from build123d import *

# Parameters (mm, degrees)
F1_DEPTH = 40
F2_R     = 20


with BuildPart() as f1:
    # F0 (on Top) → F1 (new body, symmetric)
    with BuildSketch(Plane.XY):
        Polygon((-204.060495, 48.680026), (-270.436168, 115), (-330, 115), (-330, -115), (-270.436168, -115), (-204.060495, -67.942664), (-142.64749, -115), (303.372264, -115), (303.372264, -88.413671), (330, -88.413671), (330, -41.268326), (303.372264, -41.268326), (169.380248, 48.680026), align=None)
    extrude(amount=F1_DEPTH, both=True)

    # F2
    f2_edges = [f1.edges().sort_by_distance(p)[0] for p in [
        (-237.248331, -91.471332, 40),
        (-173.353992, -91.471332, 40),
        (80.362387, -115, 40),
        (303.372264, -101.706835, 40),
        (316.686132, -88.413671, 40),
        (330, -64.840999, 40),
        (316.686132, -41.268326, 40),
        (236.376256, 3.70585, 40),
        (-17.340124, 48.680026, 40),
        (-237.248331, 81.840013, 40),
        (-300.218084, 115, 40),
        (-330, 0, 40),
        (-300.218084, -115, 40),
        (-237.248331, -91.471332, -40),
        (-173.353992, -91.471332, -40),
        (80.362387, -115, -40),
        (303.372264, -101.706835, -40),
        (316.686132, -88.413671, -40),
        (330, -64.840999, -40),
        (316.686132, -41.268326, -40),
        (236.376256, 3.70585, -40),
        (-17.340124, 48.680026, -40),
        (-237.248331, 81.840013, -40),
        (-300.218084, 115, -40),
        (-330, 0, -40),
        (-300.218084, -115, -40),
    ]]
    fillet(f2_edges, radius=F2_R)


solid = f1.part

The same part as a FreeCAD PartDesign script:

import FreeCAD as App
import Part
import Sketcher

V = App.Vector


def edges_at(feature, points):
    """Names of the edges that pass closest to the given points."""
    edges = feature.Shape.Edges
    near = lambda p: min(range(len(edges)), key=lambda i: edges[i].distToShape(Part.Vertex(*p))[0])
    return sorted({f"Edge{near(p) + 1}" for p in points})


def add_polygon(sketch, points):
    """Adds a closed chain of lines whose ends are joined by coincident constraints."""
    first, n = sketch.GeometryCount, len(points)
    for a, b in zip(points, points[1:] + points[:1]):
        sketch.addGeometry(Part.LineSegment(App.Vector(*a, 0), App.Vector(*b, 0)), False)
    for i in range(n):
        sketch.addConstraint(Sketcher.Constraint("Coincident", first + i, 2, first + (i + 1) % n, 1))

doc = App.newDocument("Part")
body = doc.addObject("PartDesign::Body", "Body")

sketch1 = body.newObject("Sketcher::SketchObject", "Sketch")
sketch1.AttachmentSupport = (doc.getObject("XY_Plane"), [""])
sketch1.MapMode = "FlatFace"
add_polygon(sketch1, [(-204.060495, 48.680026), (-270.436168, 115), (-330, 115), (-330, -115), (-270.436168, -115), (-204.060495, -67.942664), (-142.64749, -115), (303.372264, -115), (303.372264, -88.413671), (330, -88.413671), (330, -41.268326), (303.372264, -41.268326), (169.380248, 48.680026)])
sketch1.addConstraint(Sketcher.Constraint("Horizontal", 1))
sketch1.addConstraint(Sketcher.Constraint("Vertical", 2))
sketch1.addConstraint(Sketcher.Constraint("Horizontal", 3))
sketch1.addConstraint(Sketcher.Constraint("Horizontal", 6))
sketch1.addConstraint(Sketcher.Constraint("Vertical", 7))
sketch1.addConstraint(Sketcher.Constraint("Horizontal", 8))
sketch1.addConstraint(Sketcher.Constraint("Vertical", 9))
sketch1.addConstraint(Sketcher.Constraint("Horizontal", 10))
sketch1.addConstraint(Sketcher.Constraint("Horizontal", 12))
sketch1.addConstraint(Sketcher.Constraint("Symmetric", 0, 2, 3, 2, -1))
sketch1.addConstraint(Sketcher.Constraint("Horizontal", 3, 2, 5, 2))
sketch1.addConstraint(Sketcher.Constraint("Vertical", 7, 2, 10, 2))
sketch1.addConstraint(Sketcher.Constraint("Vertical", 4, 2, 12, 2))
sketch1.addConstraint(Sketcher.Constraint("DistanceY", 2, 2, 2, 1, 230.0))
sketch1.addConstraint(Sketcher.Constraint("DistanceX", 1, 2, -1, 1, 330.0))
sketch1.addConstraint(Sketcher.Constraint("DistanceX", -1, 1, 8, 2, 330.0))
sketch1.addConstraint(Sketcher.Constraint("Distance", 0, 93.83))
sketch1.addConstraint(Sketcher.Constraint("DistanceX", 1, 2, 1, 1, 59.563832))
sketch1.addConstraint(Sketcher.Constraint("DistanceY", 7, 1, 7, 2, 26.586329))
sketch1.addConstraint(Sketcher.Constraint("Distance", 5, 77.368922))
sketch1.addConstraint(Sketcher.Constraint("Distance", 11, 161.38329))
sketch1.addConstraint(Sketcher.Constraint("DistanceX", 6, 1, 6, 2, 446.019754))
sketch1.addConstraint(Sketcher.Constraint("DistanceX", 8, 1, 8, 2, 26.627736))
sketch1.addConstraint(Sketcher.Constraint("DistanceX", 12, 2, 12, 1, 373.440743))
sketch1.addConstraint(Sketcher.Constraint("DistanceY", 9, 1, 9, 2, 47.145345))
pad1 = body.newObject("PartDesign::Pad", "Pad")
pad1.Profile = sketch1
pad1.Length = 80
pad1.Midplane = True
doc.recompute()

fillet = body.newObject("PartDesign::Fillet", "Fillet")
fillet.Base = (pad1, edges_at(pad1, [
    (-237.248, -91.471, 40),
    (-173.354, -91.471, 40),
    (80.362, -115, 40),
    (303.372, -101.707, 40),
    (316.686, -88.414, 40),
    (330, -64.841, 40),
    (316.686, -41.268, 40),
    (236.376, 3.706, 40),
    (-17.34, 48.68, 40),
    (-237.248, 81.84, 40),
    (-300.218, 115, 40),
    (-330, 0, 40),
    (-300.218, -115, 40),
    (-237.248, -91.471, -40),
    (-173.354, -91.471, -40),
    (80.362, -115, -40),
    (303.372, -101.707, -40),
    (316.686, -88.414, -40),
    (330, -64.841, -40),
    (316.686, -41.268, -40),
    (236.376, 3.706, -40),
    (-17.34, 48.68, -40),
    (-237.248, 81.84, -40),
    (-300.218, 115, -40),
    (-330, 0, -40),
    (-300.218, -115, -40),
]))
fillet.Radius = 20

doc.recompute()
